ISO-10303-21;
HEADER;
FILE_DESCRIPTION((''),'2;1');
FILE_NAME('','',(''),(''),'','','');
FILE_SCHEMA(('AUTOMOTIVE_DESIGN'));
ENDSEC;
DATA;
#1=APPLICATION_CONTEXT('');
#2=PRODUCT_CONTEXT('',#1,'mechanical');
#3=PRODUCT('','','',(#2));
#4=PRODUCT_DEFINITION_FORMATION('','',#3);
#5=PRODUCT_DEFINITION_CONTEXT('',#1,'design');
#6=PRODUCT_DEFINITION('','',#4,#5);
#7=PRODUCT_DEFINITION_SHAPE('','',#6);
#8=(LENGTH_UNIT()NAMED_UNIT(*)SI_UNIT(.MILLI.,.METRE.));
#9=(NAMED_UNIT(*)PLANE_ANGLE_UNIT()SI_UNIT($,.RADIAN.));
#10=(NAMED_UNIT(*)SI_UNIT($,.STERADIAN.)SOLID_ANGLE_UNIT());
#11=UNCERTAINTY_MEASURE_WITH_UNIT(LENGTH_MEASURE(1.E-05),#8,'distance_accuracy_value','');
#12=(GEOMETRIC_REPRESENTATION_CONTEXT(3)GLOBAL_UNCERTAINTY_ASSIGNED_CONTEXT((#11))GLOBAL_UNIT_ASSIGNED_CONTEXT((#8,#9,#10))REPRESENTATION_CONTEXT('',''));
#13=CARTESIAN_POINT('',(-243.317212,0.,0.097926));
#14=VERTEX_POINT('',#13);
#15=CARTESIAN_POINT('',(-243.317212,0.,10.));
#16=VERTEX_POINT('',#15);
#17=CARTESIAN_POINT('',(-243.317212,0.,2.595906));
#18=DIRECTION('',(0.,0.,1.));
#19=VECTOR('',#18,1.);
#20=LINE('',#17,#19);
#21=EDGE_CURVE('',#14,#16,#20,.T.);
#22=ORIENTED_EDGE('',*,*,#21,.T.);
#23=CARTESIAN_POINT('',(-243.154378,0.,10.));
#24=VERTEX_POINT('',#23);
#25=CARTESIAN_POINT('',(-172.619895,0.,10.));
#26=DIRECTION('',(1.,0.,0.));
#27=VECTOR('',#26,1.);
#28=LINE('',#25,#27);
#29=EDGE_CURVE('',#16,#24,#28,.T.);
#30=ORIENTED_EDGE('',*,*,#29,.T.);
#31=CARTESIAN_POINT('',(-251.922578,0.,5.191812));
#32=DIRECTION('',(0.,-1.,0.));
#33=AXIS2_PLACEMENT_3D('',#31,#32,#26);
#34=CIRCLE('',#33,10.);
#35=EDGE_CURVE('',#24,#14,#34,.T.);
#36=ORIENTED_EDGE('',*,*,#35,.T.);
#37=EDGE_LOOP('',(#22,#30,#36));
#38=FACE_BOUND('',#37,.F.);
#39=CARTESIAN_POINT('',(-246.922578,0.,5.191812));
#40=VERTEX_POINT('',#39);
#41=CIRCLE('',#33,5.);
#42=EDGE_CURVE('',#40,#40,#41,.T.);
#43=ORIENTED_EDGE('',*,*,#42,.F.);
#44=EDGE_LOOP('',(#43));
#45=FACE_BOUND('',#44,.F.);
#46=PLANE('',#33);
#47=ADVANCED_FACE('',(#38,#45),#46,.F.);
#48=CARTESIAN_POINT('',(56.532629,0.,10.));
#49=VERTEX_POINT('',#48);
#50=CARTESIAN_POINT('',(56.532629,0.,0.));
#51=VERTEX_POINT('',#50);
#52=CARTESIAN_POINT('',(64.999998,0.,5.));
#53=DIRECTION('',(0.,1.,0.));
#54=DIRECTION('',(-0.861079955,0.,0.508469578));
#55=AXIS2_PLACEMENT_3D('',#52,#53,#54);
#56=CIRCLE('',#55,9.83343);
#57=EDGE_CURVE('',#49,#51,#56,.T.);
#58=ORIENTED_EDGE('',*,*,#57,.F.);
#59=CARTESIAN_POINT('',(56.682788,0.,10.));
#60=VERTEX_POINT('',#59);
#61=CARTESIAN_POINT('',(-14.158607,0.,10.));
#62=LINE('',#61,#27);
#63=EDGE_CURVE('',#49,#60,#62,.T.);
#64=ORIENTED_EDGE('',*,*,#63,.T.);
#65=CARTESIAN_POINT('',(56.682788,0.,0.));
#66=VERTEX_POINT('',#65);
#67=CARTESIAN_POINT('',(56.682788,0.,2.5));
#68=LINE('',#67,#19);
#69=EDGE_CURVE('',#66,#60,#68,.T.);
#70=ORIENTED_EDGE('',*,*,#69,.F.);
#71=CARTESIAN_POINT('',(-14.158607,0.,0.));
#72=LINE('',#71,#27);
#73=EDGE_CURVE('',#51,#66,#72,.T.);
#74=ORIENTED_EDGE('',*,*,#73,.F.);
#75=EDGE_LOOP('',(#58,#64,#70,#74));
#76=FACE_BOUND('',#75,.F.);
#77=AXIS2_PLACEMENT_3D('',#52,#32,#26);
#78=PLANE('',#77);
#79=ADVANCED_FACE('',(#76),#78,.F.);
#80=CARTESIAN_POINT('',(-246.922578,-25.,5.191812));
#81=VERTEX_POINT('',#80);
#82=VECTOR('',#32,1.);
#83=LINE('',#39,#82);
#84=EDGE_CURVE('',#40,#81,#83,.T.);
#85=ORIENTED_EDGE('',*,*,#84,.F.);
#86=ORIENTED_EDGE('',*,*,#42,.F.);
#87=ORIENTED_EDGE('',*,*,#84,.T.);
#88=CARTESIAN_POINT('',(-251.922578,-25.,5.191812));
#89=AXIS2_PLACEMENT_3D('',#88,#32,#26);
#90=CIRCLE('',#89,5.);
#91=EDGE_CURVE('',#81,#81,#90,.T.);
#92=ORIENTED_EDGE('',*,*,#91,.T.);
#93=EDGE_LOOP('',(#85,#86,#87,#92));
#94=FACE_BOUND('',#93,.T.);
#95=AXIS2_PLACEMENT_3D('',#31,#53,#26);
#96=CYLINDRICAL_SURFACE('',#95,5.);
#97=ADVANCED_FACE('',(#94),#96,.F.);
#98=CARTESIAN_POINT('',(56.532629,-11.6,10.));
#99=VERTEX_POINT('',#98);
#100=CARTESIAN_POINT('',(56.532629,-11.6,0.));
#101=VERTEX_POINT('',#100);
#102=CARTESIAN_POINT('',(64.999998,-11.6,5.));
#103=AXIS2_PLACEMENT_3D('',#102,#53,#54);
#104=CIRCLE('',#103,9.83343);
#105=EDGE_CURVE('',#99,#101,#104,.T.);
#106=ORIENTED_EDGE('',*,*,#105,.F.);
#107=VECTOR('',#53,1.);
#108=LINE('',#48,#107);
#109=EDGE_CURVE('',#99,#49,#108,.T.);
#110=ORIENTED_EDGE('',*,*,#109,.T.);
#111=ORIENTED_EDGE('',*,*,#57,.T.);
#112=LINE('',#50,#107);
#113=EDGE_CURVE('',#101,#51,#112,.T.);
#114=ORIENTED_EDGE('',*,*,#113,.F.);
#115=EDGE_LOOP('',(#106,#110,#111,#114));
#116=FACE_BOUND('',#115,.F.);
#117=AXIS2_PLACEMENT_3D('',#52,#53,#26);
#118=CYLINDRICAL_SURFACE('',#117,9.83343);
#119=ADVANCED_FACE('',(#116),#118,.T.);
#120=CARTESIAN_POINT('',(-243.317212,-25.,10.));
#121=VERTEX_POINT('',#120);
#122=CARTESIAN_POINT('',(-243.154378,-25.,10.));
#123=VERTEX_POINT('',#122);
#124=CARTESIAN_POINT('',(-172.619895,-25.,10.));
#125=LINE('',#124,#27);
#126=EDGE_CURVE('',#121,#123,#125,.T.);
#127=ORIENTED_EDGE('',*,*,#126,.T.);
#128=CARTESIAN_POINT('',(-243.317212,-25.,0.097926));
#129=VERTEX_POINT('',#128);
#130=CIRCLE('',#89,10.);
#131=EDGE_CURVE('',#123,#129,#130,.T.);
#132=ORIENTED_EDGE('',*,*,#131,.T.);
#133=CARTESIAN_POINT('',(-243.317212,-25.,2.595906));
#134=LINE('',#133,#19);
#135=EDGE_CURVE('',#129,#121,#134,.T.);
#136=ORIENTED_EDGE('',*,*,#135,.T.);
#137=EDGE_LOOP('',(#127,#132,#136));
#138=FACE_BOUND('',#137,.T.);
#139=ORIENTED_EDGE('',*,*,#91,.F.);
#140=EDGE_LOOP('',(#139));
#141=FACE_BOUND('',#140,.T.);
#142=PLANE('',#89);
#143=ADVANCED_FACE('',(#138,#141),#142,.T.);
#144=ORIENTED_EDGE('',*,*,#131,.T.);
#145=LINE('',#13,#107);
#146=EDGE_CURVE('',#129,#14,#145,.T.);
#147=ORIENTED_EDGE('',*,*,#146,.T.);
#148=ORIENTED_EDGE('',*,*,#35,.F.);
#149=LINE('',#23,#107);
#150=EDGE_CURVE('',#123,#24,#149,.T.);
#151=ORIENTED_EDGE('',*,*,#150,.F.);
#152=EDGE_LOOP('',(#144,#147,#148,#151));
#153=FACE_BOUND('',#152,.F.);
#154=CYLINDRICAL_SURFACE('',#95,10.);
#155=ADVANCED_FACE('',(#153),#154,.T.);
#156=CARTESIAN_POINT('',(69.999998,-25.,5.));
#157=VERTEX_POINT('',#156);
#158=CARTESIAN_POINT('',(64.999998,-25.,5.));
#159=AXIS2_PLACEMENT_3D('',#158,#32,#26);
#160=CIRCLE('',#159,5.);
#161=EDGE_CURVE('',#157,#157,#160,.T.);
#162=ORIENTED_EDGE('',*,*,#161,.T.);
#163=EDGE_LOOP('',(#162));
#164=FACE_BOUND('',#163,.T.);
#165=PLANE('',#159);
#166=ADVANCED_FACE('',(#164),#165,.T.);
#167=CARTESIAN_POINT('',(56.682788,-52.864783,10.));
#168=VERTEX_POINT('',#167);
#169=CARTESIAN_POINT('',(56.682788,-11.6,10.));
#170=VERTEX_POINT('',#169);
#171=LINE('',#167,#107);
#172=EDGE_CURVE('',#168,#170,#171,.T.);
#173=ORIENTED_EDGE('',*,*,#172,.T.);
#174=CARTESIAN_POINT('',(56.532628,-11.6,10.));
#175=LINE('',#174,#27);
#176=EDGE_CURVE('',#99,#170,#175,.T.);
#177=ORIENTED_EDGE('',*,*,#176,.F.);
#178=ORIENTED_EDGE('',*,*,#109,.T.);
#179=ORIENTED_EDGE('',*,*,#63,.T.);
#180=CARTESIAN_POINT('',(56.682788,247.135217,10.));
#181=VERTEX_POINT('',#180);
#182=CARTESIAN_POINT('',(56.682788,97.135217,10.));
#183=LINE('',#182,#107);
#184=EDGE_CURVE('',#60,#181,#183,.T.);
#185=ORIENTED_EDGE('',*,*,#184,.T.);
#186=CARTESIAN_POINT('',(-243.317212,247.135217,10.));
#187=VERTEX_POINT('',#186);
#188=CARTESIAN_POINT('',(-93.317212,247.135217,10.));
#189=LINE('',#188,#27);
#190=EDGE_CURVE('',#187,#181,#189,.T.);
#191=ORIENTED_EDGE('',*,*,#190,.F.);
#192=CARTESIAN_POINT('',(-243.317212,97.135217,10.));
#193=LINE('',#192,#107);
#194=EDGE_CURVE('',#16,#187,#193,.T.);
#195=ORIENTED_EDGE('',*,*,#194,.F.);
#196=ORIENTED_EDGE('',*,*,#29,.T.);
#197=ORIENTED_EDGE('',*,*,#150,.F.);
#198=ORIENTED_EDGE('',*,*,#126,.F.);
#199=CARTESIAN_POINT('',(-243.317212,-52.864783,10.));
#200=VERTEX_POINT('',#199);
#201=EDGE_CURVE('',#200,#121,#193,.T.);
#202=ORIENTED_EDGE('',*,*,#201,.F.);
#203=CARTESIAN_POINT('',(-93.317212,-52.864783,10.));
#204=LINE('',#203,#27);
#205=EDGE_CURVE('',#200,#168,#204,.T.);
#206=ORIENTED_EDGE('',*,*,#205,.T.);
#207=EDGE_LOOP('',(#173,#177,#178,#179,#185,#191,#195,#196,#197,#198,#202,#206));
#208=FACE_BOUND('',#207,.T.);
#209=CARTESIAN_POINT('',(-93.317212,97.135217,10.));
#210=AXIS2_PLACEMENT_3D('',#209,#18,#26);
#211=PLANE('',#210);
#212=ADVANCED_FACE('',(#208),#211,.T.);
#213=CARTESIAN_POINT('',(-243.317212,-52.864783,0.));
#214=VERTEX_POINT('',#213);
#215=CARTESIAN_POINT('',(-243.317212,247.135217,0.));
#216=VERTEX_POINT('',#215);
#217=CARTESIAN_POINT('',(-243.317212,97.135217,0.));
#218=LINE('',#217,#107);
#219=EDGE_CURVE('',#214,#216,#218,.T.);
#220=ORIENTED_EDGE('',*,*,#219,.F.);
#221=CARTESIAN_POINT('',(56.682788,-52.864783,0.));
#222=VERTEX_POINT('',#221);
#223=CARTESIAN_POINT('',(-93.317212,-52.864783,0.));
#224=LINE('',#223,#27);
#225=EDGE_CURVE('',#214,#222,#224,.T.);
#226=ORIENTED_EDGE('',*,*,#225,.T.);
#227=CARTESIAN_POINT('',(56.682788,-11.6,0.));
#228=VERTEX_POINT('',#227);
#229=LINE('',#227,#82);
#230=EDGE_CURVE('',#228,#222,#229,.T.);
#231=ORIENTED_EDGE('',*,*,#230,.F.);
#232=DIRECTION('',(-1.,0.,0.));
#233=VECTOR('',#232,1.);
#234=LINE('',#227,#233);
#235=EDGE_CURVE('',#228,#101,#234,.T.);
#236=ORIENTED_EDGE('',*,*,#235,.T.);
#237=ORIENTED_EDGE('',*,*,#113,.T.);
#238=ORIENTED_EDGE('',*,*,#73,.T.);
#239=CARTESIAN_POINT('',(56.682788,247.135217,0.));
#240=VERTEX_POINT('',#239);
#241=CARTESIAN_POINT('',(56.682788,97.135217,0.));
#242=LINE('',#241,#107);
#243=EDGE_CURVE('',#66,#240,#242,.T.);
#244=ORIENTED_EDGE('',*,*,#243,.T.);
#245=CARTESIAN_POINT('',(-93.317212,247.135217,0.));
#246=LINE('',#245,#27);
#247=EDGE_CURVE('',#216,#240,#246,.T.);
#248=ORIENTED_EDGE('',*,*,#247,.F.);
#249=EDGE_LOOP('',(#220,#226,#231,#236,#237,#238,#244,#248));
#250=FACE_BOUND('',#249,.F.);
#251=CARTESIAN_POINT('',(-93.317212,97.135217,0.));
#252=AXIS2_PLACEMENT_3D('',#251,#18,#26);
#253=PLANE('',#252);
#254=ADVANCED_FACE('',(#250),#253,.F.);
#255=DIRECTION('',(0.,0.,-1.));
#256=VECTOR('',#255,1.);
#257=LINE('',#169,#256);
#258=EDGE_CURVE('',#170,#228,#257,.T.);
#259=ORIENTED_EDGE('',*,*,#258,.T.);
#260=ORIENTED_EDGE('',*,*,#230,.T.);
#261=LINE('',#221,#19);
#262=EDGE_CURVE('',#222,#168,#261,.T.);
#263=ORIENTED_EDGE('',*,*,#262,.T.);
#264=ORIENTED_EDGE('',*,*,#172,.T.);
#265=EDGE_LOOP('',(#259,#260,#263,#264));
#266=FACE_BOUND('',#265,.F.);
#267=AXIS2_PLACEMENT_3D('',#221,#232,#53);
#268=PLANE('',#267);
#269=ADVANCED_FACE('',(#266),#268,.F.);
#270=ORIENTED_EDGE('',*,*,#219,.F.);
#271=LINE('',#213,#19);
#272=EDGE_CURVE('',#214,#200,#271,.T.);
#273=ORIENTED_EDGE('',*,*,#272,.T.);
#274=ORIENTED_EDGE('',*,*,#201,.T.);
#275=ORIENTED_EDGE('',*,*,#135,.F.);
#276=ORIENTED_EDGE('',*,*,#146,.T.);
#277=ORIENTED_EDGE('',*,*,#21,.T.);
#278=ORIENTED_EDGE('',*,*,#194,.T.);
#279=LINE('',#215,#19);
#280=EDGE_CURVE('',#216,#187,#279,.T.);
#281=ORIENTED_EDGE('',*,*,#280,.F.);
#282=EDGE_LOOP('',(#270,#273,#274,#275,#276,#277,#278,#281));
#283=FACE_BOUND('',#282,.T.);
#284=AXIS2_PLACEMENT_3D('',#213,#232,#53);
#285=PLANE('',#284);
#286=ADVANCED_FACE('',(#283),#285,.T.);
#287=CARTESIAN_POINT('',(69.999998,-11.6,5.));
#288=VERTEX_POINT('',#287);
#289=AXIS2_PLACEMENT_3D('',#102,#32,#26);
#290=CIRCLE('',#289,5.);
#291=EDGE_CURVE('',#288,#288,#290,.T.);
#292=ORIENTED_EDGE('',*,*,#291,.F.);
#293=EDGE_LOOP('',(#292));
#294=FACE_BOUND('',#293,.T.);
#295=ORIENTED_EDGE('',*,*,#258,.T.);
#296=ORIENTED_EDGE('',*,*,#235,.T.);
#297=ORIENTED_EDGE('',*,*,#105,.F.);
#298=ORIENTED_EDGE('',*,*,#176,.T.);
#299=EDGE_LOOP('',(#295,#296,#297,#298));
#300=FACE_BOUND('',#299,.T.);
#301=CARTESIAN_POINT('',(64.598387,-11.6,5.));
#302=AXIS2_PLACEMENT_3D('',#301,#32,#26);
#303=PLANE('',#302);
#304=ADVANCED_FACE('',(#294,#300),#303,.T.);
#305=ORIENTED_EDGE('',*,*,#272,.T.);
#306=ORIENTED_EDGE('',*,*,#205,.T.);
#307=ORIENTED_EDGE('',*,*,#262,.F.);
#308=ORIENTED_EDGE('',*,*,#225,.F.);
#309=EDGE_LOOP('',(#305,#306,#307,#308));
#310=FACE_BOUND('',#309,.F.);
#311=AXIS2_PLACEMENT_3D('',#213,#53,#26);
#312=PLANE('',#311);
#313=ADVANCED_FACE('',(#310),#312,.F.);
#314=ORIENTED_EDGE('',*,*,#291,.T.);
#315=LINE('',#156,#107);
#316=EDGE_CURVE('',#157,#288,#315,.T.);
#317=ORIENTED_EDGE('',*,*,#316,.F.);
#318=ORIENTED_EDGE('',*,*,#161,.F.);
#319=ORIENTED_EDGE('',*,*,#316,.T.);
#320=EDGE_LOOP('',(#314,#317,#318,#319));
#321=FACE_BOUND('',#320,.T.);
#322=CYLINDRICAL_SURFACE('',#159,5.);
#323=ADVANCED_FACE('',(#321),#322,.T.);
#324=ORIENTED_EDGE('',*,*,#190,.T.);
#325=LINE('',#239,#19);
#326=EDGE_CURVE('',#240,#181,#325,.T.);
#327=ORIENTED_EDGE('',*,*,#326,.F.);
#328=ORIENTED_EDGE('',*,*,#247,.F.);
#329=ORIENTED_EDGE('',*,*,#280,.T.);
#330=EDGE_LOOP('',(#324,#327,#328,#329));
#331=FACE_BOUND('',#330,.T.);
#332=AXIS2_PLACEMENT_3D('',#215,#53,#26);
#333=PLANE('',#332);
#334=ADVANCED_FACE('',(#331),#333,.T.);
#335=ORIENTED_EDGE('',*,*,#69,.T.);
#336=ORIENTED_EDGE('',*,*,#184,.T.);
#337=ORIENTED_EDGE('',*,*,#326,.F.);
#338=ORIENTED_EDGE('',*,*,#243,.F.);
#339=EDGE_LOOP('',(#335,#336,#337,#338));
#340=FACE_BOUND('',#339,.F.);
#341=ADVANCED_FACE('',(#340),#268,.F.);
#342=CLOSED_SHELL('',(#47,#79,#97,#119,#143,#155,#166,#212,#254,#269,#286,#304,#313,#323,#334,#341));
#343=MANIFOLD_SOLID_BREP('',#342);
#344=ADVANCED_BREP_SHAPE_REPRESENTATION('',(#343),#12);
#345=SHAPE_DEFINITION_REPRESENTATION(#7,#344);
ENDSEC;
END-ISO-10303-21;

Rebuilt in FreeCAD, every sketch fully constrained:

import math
import FreeCAD as App
import Part
import Sketcher


def add_polygon(sketch, points):
    """Adds a closed chain of lines whose ends are joined by coincident constraints."""
    first, n = sketch.GeometryCount, len(points)
    for a, b in zip(points, points[1:] + points[:1]):
        sketch.addGeometry(Part.LineSegment(App.Vector(*a, 0), App.Vector(*b, 0)), False)
    for i in range(n):
        sketch.addConstraint(Sketcher.Constraint("Coincident", first + i, 2, first + (i + 1) % n, 1))

doc = App.newDocument("Part")
params = doc.addObject("Spreadsheet::Sheet", "Params")
for row, (alias, value) in enumerate([
    ("sketch1_width", "300 mm"),
    ("pad1_length", "10 mm"),
    ("sketch2_diameter", "20 mm"),
    ("sketch2_diameter2", "10 mm"),
    ("pad2_length", "25 mm"),
    ("sketch3_diameter", "10 mm"),
    ("sketch3_height", "10 mm"),
    ("pocket1_length", "13.4 mm"),
], start=1):
    params.set(f"A{row}", alias)
    params.set(f"B{row}", "=" + value)
    params.setAlias(f"B{row}", alias)

body = doc.addObject("PartDesign::Body", "Body")

sketch1 = body.newObject("Sketcher::SketchObject", "Sketch")
sketch1.AttachmentSupport = (doc.getObject("XY_Plane"), [""])
sketch1.MapMode = "FlatFace"
add_polygon(sketch1, [(-243, 247), (-243, -53), (57, -53), (57, 247)])
sketch1.addConstraint(Sketcher.Constraint("Vertical", 0))
sketch1.addConstraint(Sketcher.Constraint("Horizontal", 1))
sketch1.addConstraint(Sketcher.Constraint("Vertical", 2))
sketch1.addConstraint(Sketcher.Constraint("Horizontal", 3))
sketch1.addConstraint(Sketcher.Constraint("Equal", 3, 0))
sketch1.addConstraint(Sketcher.Constraint("DistanceX", 1, 1, 1, 2, 300.0))
sketch1.addConstraint(Sketcher.Constraint("DistanceX", -1, 1, 1, 2, 56.682788))
sketch1.addConstraint(Sketcher.Constraint("DistanceY", 0, 2, -1, 1, 52.864783))
sketch1.setExpression("Constraints[9]", "Params.sketch1_width")
pad1 = body.newObject("PartDesign::Pad", "Pad")
pad1.Profile = sketch1
pad1.setExpression("Length", "Params.pad1_length")

sketch2 = body.newObject("Sketcher::SketchObject", "Sketch001")
sketch2.AttachmentSupport = (doc.getObject("XZ_Plane"), [""])
sketch2.MapMode = "FlatFace"
sketch2.addGeometry(Part.Circle(App.Vector(-252, 5, 0), App.Vector(0, 0, 1), 10), False)
sketch2.addGeometry(Part.Circle(App.Vector(-252, 5, 0), App.Vector(0, 0, 1), 5), False)
sketch2.addGeometry(Part.Circle(App.Vector(65, 5, 0), App.Vector(0, 0, 1), 10), False)
sketch2.addConstraint(Sketcher.Constraint("Coincident", 1, 3, 0, 3))
sketch2.addConstraint(Sketcher.Constraint("Diameter", 0, 20.0))
sketch2.addConstraint(Sketcher.Constraint("Diameter", 1, 10.0))
sketch2.addConstraint(Sketcher.Constraint("DistanceX", -1, 1, 2, 3, 64.999998))
sketch2.addConstraint(Sketcher.Constraint("DistanceY", -1, 1, 2, 3, 5.0))
sketch2.addConstraint(Sketcher.Constraint("Diameter", 2, 19.66686))
sketch2.addConstraint(Sketcher.Constraint("DistanceY", -1, 1, 0, 3, 5.191812))
sketch2.addConstraint(Sketcher.Constraint("DistanceX", 0, 3, -1, 1, 251.922578))
sketch2.setExpression("Constraints[1]", "Params.sketch2_diameter")
sketch2.setExpression("Constraints[2]", "Params.sketch2_diameter2")
pad2 = body.newObject("PartDesign::Pad", "Pad001")
pad2.Profile = sketch2
pad2.setExpression("Length", "Params.pad2_length")

sketch3 = body.newObject("Sketcher::SketchObject", "Sketch002")
sketch3.AttachmentSupport = (doc.getObject("XZ_Plane"), [""])
sketch3.MapMode = "FlatFace"
sketch3.AttachmentOffset = App.Placement(App.Vector(0, 0, 25), App.Rotation())
sketch3.addGeometry(Part.LineSegment(App.Vector(56.68, 10, 0), App.Vector(56.68, 0, 0)), False)
sketch3.addGeometry(Part.LineSegment(App.Vector(56.68, 0, 0), App.Vector(56.53, 0, 0)), False)
sketch3.addGeometry(Part.ArcOfCircle(Part.Circle(App.Vector(65, 5, 0), App.Vector(0, 0, 1), 9.83), math.radians(-149), math.radians(149)), False)
sketch3.addGeometry(Part.LineSegment(App.Vector(56.53, 10, 0), App.Vector(56.68, 10, 0)), False)
sketch3.addGeometry(Part.Circle(App.Vector(65, 5, 0), App.Vector(0, 0, 1), 5), False)
sketch3.addConstraint(Sketcher.Constraint("Coincident", 0, 2, 1, 1))
sketch3.addConstraint(Sketcher.Constraint("Coincident", 1, 2, 2, 1))
sketch3.addConstraint(Sketcher.Constraint("Coincident", 2, 2, 3, 1))
sketch3.addConstraint(Sketcher.Constraint("Coincident", 3, 2, 0, 1))
sketch3.addConstraint(Sketcher.Constraint("Vertical", 0))
sketch3.addConstraint(Sketcher.Constraint("Horizontal", 1))
sketch3.addConstraint(Sketcher.Constraint("Horizontal", 3))
sketch3.addConstraint(Sketcher.Constraint("Coincident", 4, 3, 2, 3))
sketch3.addConstraint(Sketcher.Constraint("PointOnObject", 0, 2, -1))
sketch3.addConstraint(Sketcher.Constraint("Vertical", 1, 2, 2, 2))
sketch3.addConstraint(Sketcher.Constraint("Diameter", 4, 10.0))
sketch3.addConstraint(Sketcher.Constraint("DistanceY", 0, 2, 0, 1, 10.0))
sketch3.addConstraint(Sketcher.Constraint("DistanceX", -1, 1, 4, 3, 64.999998))
sketch3.addConstraint(Sketcher.Constraint("Radius", 2, 9.83343))
sketch3.addConstraint(Sketcher.Constraint("DistanceX", 1, 2, 1, 1, 0.15016))
sketch3.setExpression("Constraints[10]", "Params.sketch3_diameter")
sketch3.setExpression("Constraints[11]", "Params.sketch3_height")
pocket1 = body.newObject("PartDesign::Pocket", "Pocket")
pocket1.Profile = sketch3
pocket1.setExpression("Length", "Params.pocket1_length")

doc.recompute()
